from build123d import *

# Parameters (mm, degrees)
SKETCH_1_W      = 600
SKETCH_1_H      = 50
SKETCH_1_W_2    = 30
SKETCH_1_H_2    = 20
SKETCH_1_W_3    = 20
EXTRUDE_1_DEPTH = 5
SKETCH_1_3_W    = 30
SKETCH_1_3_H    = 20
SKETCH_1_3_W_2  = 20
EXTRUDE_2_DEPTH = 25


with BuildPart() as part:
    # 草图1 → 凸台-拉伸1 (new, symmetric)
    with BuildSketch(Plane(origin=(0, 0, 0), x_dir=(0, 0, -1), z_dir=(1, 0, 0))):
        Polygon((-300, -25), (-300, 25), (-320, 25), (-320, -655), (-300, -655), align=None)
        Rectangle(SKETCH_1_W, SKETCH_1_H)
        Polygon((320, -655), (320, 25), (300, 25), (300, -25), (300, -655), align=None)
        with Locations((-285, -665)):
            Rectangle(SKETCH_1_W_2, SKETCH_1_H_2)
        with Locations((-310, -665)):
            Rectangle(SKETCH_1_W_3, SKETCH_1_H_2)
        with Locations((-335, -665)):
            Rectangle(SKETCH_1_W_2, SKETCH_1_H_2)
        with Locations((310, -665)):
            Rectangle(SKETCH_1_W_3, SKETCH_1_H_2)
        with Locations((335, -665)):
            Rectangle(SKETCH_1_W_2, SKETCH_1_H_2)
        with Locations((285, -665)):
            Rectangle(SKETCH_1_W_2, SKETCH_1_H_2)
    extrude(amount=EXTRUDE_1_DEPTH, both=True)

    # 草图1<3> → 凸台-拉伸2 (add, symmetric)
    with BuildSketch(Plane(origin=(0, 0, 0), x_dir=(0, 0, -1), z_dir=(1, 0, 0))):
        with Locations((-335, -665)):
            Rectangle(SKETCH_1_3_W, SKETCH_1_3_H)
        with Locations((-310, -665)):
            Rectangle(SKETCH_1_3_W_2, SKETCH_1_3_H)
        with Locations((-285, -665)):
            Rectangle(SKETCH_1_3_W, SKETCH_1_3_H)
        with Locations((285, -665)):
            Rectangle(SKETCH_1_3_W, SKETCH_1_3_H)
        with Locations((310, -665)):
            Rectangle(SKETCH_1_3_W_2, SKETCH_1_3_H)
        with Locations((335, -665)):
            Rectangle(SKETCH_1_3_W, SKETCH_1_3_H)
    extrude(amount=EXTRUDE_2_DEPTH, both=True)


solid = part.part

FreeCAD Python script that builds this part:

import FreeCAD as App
import Part
import Sketcher
from FreeCAD import Vector
Q = App.Units.Quantity

doc = App.newDocument("Part")
body = doc.addObject("PartDesign::Body", "Body")

# Sketch on YZ plane
sketch1 = doc.addObject("Sketcher::SketchObject", "Sketch")
body.addObject(sketch1)
sketch1.AttachmentSupport = (doc.YZ_Plane, [""])
sketch1.MapMode = "FlatFace"
sketch1.addGeometry([
    Part.LineSegment(Vector(25, 320, 0), Vector(-655, 320, 0)),  # 0
    Part.LineSegment(Vector(-655, 320, 0), Vector(-655, 350, 0)),  # 1
    Part.LineSegment(Vector(-655, 350, 0), Vector(-675, 350, 0)),  # 2
    Part.LineSegment(Vector(-675, 350, 0), Vector(-675, 270, 0)),  # 3
    Part.LineSegment(Vector(-675, 270, 0), Vector(-655, 270, 0)),  # 4
    Part.LineSegment(Vector(-655, 270, 0), Vector(-655, 300, 0)),  # 5
    Part.LineSegment(Vector(-655, 300, 0), Vector(-25, 300, 0)),  # 6
    Part.LineSegment(Vector(-25, 300, 0), Vector(-25, -300, 0)),  # 7
    Part.LineSegment(Vector(-25, -300, 0), Vector(-655, -300, 0)),  # 8
    Part.LineSegment(Vector(-655, -300, 0), Vector(-655, -270, 0)),  # 9
    Part.LineSegment(Vector(-655, -270, 0), Vector(-675, -270, 0)),  # 10
    Part.LineSegment(Vector(-675, -270, 0), Vector(-675, -350, 0)),  # 11
    Part.LineSegment(Vector(-675, -350, 0), Vector(-655, -350, 0)),  # 12
    Part.LineSegment(Vector(-655, -350, 0), Vector(-655, -320, 0)),  # 13
    Part.LineSegment(Vector(-655, -320, 0), Vector(25, -320, 0)),  # 14
    Part.LineSegment(Vector(25, -320, 0), Vector(25, 320, 0)),  # 15
], False)
sketch1.addConstraint([
    Sketcher.Constraint("Coincident", 0, 2, 1, 1),
    Sketcher.Constraint("Coincident", 1, 2, 2, 1),
    Sketcher.Constraint("Coincident", 2, 2, 3, 1),
    Sketcher.Constraint("Coincident", 3, 2, 4, 1),
    Sketcher.Constraint("Coincident", 4, 2, 5, 1),
    Sketcher.Constraint("Coincident", 5, 2, 6, 1),
    Sketcher.Constraint("Coincident", 6, 2, 7, 1),
    Sketcher.Constraint("Coincident", 7, 2, 8, 1),
    Sketcher.Constraint("Coincident", 8, 2, 9, 1),
    Sketcher.Constraint("Coincident", 9, 2, 10, 1),
    Sketcher.Constraint("Coincident", 10, 2, 11, 1),
    Sketcher.Constraint("Coincident", 11, 2, 12, 1),
    Sketcher.Constraint("Coincident", 12, 2, 13, 1),
    Sketcher.Constraint("Coincident", 13, 2, 14, 1),
    Sketcher.Constraint("Coincident", 14, 2, 15, 1),
    Sketcher.Constraint("Coincident", 15, 2, 0, 1),
    Sketcher.Constraint("Horizontal", 0),
    Sketcher.Constraint("Vertical", 1),
    Sketcher.Constraint("Horizontal", 2),
    Sketcher.Constraint("Vertical", 3),
    Sketcher.Constraint("Horizontal", 4),
    Sketcher.Constraint("Vertical", 5),
    Sketcher.Constraint("Horizontal", 6),
    Sketcher.Constraint("Vertical", 7),
    Sketcher.Constraint("Horizontal", 8),
    Sketcher.Constraint("Vertical", 9),
    Sketcher.Constraint("Horizontal", 10),
    Sketcher.Constraint("Vertical", 11),
    Sketcher.Constraint("Horizontal", 12),
    Sketcher.Constraint("Vertical", 13),
    Sketcher.Constraint("Horizontal", 14),
    Sketcher.Constraint("Vertical", 15),
    Sketcher.Constraint("Symmetric", 5, 2, 8, 2, -1),
    Sketcher.Constraint("Symmetric", 3, 2, 10, 2, -1),
    Sketcher.Constraint("Symmetric", 1, 2, 12, 2, -1),
    Sketcher.Constraint("Vertical", 1, 2, 4, 2),
    Sketcher.Constraint("Equal", 1, 5),
    Sketcher.Constraint("Equal", 9, 13),
    Sketcher.Constraint("DistanceX", 0, 2, 0, 1, Q("680 mm")),
    Sketcher.Constraint("DistanceX", 2, 2, 2, 1, Q("20 mm")),
    Sketcher.Constraint("DistanceX", 6, 1, 6, 2, Q("630 mm")),
    Sketcher.Constraint("DistanceY", 1, 1, 1, 2, Q("30 mm")),
    Sketcher.Constraint("DistanceY", 3, 2, 3, 1, Q("80 mm")),
    Sketcher.Constraint("DistanceY", 7, 2, 7, 1, Q("600 mm")),
    Sketcher.Constraint("DistanceX", 0, 2, -1, 1, Q("655 mm")),
])
pad1 = doc.addObject("PartDesign::Pad", "Pad")
body.addObject(pad1)
pad1.Profile = sketch1
pad1.Length = 10
pad1.Midplane = True

# Sketch on YZ plane
sketch2 = doc.addObject("Sketcher::SketchObject", "Sketch001")
body.addObject(sketch2)
sketch2.AttachmentSupport = (doc.YZ_Plane, [""])
sketch2.MapMode = "FlatFace"
sketch2.addGeometry([
    Part.LineSegment(Vector(-655, 350, 0), Vector(-675, 350, 0)),  # 0
    Part.LineSegment(Vector(-675, 350, 0), Vector(-675, 270, 0)),  # 1
    Part.LineSegment(Vector(-675, 270, 0), Vector(-655, 270, 0)),  # 2
    Part.LineSegment(Vector(-655, 270, 0), Vector(-655, 350, 0)),  # 3
    Part.LineSegment(Vector(-655, -270, 0), Vector(-675, -270, 0)),  # 4
    Part.LineSegment(Vector(-675, -270, 0), Vector(-675, -350, 0)),  # 5
    Part.LineSegment(Vector(-675, -350, 0), Vector(-655, -350, 0)),  # 6
    Part.LineSegment(Vector(-655, -350, 0), Vector(-655, -270, 0)),  # 7
], False)
sketch2.addConstraint([
    Sketcher.Constraint("Coincident", 0, 2, 1, 1),
    Sketcher.Constraint("Coincident", 1, 2, 2, 1),
    Sketcher.Constraint("Coincident", 2, 2, 3, 1),
    Sketcher.Constraint("Coincident", 3, 2, 0, 1),
    Sketcher.Constraint("Coincident", 4, 2, 5, 1),
    Sketcher.Constraint("Coincident", 5, 2, 6, 1),
    Sketcher.Constraint("Coincident", 6, 2, 7, 1),
    Sketcher.Constraint("Coincident", 7, 2, 4, 1),
    Sketcher.Constraint("Horizontal", 0),
    Sketcher.Constraint("Vertical", 1),
    Sketcher.Constraint("Horizontal", 2),
    Sketcher.Constraint("Vertical", 3),
    Sketcher.Constraint("Horizontal", 4),
    Sketcher.Constraint("Vertical", 5),
    Sketcher.Constraint("Horizontal", 6),
    Sketcher.Constraint("Vertical", 7),
    Sketcher.Constraint("Symmetric", 1, 2, 4, 2, -1),
    Sketcher.Constraint("Symmetric", 3, 2, 6, 2, -1),
    Sketcher.Constraint("DistanceX", 0, 2, 0, 1, Q("20 mm")),
    Sketcher.Constraint("DistanceY", 1, 2, 1, 1, Q("80 mm")),
    Sketcher.Constraint("DistanceX", 0, 2, -1, 1, Q("675 mm")),
    Sketcher.Constraint("DistanceY", -1, 1, 0, 2, Q("350 mm")),
])
pad2 = doc.addObject("PartDesign::Pad", "Pad001")
body.addObject(pad2)
pad2.Profile = sketch2
pad2.Length = 50
pad2.Midplane = True

doc.recompute()
